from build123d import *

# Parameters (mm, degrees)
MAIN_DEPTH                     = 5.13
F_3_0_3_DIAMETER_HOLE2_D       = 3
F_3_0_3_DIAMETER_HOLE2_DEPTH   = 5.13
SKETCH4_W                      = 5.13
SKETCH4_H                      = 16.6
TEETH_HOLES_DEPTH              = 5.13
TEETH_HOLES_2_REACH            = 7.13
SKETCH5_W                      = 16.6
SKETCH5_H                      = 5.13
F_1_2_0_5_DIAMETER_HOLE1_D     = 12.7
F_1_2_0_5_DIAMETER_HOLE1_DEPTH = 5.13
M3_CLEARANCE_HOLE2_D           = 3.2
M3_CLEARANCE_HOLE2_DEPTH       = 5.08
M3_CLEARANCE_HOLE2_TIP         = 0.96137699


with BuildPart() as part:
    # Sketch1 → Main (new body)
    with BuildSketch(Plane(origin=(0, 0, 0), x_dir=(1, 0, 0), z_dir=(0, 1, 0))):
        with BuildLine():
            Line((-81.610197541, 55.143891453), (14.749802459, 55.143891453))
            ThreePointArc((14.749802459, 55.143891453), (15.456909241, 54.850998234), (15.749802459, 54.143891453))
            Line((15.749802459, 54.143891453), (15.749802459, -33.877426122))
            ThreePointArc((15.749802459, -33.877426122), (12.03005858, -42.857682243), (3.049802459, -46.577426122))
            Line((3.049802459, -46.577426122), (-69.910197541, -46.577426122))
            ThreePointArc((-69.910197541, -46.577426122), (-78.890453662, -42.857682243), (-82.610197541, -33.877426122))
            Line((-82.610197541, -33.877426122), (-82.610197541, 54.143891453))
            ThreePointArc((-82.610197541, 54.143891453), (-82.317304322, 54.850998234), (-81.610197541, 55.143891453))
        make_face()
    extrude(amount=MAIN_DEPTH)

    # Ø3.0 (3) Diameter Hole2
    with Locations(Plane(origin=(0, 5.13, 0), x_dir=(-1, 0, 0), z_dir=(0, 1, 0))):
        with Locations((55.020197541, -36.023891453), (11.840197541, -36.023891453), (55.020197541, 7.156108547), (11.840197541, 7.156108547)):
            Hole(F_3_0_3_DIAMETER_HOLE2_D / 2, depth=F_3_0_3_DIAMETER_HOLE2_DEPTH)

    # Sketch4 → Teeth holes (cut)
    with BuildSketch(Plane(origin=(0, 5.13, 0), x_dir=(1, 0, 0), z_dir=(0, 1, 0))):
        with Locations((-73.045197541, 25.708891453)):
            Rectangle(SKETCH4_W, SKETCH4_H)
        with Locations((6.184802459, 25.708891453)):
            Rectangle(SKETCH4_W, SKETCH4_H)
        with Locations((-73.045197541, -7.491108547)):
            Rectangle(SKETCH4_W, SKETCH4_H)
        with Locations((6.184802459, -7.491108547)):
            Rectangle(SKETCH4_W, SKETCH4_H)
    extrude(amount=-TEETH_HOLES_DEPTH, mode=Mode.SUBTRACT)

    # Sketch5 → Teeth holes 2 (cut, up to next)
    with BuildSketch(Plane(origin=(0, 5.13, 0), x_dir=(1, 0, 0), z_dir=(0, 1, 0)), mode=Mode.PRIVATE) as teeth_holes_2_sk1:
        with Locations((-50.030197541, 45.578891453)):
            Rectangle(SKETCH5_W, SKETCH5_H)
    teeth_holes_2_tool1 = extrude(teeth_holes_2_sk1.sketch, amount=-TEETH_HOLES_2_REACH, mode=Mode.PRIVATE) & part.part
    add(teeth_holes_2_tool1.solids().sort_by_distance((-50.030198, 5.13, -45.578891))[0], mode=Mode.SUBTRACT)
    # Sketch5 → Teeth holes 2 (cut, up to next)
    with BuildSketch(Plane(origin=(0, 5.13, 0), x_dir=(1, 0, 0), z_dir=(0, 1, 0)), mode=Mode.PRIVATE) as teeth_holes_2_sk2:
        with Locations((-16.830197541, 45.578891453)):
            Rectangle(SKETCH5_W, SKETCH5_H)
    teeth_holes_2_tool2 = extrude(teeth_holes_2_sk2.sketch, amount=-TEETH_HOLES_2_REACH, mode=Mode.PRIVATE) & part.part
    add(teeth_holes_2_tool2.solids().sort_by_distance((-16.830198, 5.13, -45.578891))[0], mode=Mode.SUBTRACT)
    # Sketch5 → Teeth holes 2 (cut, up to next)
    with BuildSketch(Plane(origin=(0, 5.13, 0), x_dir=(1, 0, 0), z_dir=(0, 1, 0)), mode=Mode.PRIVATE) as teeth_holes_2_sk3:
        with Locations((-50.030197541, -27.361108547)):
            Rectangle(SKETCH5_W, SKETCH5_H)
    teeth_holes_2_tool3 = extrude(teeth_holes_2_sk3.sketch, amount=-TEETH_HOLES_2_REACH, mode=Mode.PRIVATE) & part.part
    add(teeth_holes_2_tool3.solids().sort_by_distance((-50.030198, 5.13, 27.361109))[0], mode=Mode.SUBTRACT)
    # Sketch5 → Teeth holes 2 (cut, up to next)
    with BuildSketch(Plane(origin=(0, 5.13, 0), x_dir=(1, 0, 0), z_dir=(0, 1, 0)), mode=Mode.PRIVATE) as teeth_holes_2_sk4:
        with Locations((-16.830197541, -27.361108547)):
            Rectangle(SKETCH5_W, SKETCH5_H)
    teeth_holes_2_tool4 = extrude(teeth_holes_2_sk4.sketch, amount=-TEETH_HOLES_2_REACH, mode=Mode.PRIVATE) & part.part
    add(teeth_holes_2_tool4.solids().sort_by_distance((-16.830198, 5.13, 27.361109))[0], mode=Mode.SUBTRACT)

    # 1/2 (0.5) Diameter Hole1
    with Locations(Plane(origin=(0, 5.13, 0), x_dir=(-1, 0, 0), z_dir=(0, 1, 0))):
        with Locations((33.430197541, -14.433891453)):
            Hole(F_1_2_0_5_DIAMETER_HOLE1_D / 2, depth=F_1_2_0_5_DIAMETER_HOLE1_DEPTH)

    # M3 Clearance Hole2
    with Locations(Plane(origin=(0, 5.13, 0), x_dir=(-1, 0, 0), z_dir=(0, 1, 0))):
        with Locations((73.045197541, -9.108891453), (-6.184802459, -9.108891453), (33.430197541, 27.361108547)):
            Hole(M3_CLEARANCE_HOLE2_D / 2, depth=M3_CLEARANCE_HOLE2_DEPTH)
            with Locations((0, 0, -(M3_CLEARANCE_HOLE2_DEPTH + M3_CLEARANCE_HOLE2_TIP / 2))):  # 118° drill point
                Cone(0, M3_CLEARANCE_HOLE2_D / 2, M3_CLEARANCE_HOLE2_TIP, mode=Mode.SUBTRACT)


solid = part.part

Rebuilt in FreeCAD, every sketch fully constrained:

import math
import FreeCAD as App
import Part
import Sketcher
Q = App.Units.Quantity


def add_polygon(sketch, points):
    """Adds a closed chain of lines whose ends are joined by coincident constraints."""
    first, n = sketch.GeometryCount, len(points)
    for a, b in zip(points, points[1:] + points[:1]):
        sketch.addGeometry(Part.LineSegment(App.Vector(*a, 0), App.Vector(*b, 0)), False)
    for i in range(n):
        sketch.addConstraint(Sketcher.Constraint("Coincident", first + i, 2, first + (i + 1) % n, 1))

doc = App.newDocument("Part")
body = doc.addObject("PartDesign::Body", "Body")

# Sketch on XZ plane
sketch1 = body.newObject("Sketcher::SketchObject", "Sketch")
sketch1.AttachmentSupport = (doc.getObject("XZ_Plane"), [""])
sketch1.MapMode = "FlatFace"
sketch1.addGeometry([
    Part.LineSegment(App.Vector(14.7, -55.1, 0), App.Vector(-81.6, -55.1, 0)),  # 0
    Part.ArcOfCircle(Part.Circle(App.Vector(-81.6, -54.1, 0), App.Vector(0, 0, 1), 1), math.radians(-180), math.radians(-90)),  # 1
    Part.LineSegment(App.Vector(-82.6, -54.1, 0), App.Vector(-82.6, 33.9, 0)),  # 2
    Part.ArcOfCircle(Part.Circle(App.Vector(-69.9, 33.9, 0), App.Vector(0, 0, 1), 12.7), math.radians(90), math.radians(180)),  # 3
    Part.LineSegment(App.Vector(-69.9, 46.6, 0), App.Vector(3, 46.6, 0)),  # 4
    Part.ArcOfCircle(Part.Circle(App.Vector(3, 33.9, 0), App.Vector(0, 0, 1), 12.7), math.radians(0), math.radians(90)),  # 5
    Part.LineSegment(App.Vector(15.7, 33.9, 0), App.Vector(15.7, -54.1, 0)),  # 6
    Part.ArcOfCircle(Part.Circle(App.Vector(14.7, -54.1, 0), App.Vector(0, 0, 1), 1), math.radians(-90), math.radians(0)),  # 7
], False)
sketch1.addConstraint([
    Sketcher.Constraint("Tangent", 0, 2, 1, 2),
    Sketcher.Constraint("Tangent", 1, 1, 2, 1),
    Sketcher.Constraint("Tangent", 2, 2, 3, 2),
    Sketcher.Constraint("Tangent", 3, 1, 4, 1),
    Sketcher.Constraint("Tangent", 4, 2, 5, 2),
    Sketcher.Constraint("Tangent", 5, 1, 6, 1),
    Sketcher.Constraint("Tangent", 6, 2, 7, 2),
    Sketcher.Constraint("Tangent", 7, 1, 0, 1),
    Sketcher.Constraint("Horizontal", 0),
    Sketcher.Constraint("Vertical", 2),
    Sketcher.Constraint("Horizontal", 4),
    Sketcher.Constraint("Vertical", 6),
    Sketcher.Constraint("Equal", 3, 5),
    Sketcher.Constraint("Equal", 1, 7),
    Sketcher.Constraint("Radius", 1, Q("1 mm")),
    Sketcher.Constraint("Radius", 3, Q("12.7 mm")),
    Sketcher.Constraint("DistanceX", 0, 2, 0, 1, Q("96.36 mm")),
    Sketcher.Constraint("DistanceY", 2, 1, 2, 2, Q("88.021318 mm")),
    Sketcher.Constraint("DistanceY", 1, 3, -1, 1, Q("54.143891 mm")),
    Sketcher.Constraint("DistanceX", 1, 3, -1, 1, Q("81.610198 mm")),
])
pad1 = body.newObject("PartDesign::Pad", "Pad")
pad1.Profile = sketch1
pad1.Length = 5.13
pad1.Reversed = True

# Sketch on XZ plane
sketch2 = body.newObject("Sketcher::SketchObject", "Sketch001")
sketch2.AttachmentSupport = (doc.getObject("XZ_Plane"), [""])
sketch2.MapMode = "FlatFace"
sketch2.AttachmentOffset = App.Placement(App.Vector(0, 0, -5.13), App.Rotation())
sketch2.addGeometry([
    Part.Circle(App.Vector(-55, -36, 0), App.Vector(0, 0, 1), 1.5),
    Part.Circle(App.Vector(-11.8, -36, 0), App.Vector(0, 0, 1), 1.5),
    Part.Circle(App.Vector(-55, 7.2, 0), App.Vector(0, 0, 1), 1.5),
    Part.Circle(App.Vector(-11.8, 7.2, 0), App.Vector(0, 0, 1), 1.5),
], False)
sketch2.addConstraint([
    Sketcher.Constraint("Equal", 0, 1),
    Sketcher.Constraint("Equal", 1, 2),
    Sketcher.Constraint("Equal", 2, 3),
    Sketcher.Constraint("Horizontal", 0, 3, 1, 3),
    Sketcher.Constraint("Horizontal", 2, 3, 3, 3),
    Sketcher.Constraint("Vertical", 0, 3, 2, 3),
    Sketcher.Constraint("Vertical", 1, 3, 3, 3),
    Sketcher.Constraint("Diameter", 0, Q("3 mm")),
    Sketcher.Constraint("DistanceX", 0, 3, 1, 3, Q("43.18 mm")),
    Sketcher.Constraint("DistanceY", 0, 3, 2, 3, Q("43.18 mm")),
    Sketcher.Constraint("DistanceY", 0, 3, -1, 1, Q("36.023891 mm")),
    Sketcher.Constraint("DistanceX", 0, 3, -1, 1, Q("55.020198 mm")),
])
doc.recompute()
hole = body.newObject("PartDesign::Hole", "Hole")
hole.Profile = sketch2
hole.ThreadType = "None"
hole.Diameter = 3
hole.DepthType = "Dimension"
hole.Depth = 5.13
hole.DrillPoint = "Flat"
hole.Reversed = True

# Sketch on XZ plane
sketch3 = body.newObject("Sketcher::SketchObject", "Sketch002")
sketch3.AttachmentSupport = (doc.getObject("XZ_Plane"), [""])
sketch3.MapMode = "FlatFace"
sketch3.AttachmentOffset = App.Placement(App.Vector(0, 0, -5.13), App.Rotation())
add_polygon(sketch3, [(-76, -34), (-76, -17), (-70, -17), (-70, -34)])  # lines 0-3
add_polygon(sketch3, [(4, -34), (4, -17), (9, -17), (9, -34)])  # lines 4-7
add_polygon(sketch3, [(-76, -1), (-76, 16), (-70, 16), (-70, -1)])  # lines 8-11
add_polygon(sketch3, [(4, -1), (4, 16), (9, 16), (9, -1)])  # lines 12-15
sketch3.addConstraint([
    Sketcher.Constraint("Vertical", 0),
    Sketcher.Constraint("Horizontal", 1),
    Sketcher.Constraint("Vertical", 2),
    Sketcher.Constraint("Horizontal", 3),
    Sketcher.Constraint("Vertical", 4),
    Sketcher.Constraint("Horizontal", 5),
    Sketcher.Constraint("Vertical", 6),
    Sketcher.Constraint("Horizontal", 7),
    Sketcher.Constraint("Vertical", 8),
    Sketcher.Constraint("Horizontal", 9),
    Sketcher.Constraint("Vertical", 10),
    Sketcher.Constraint("Horizontal", 11),
    Sketcher.Constraint("Vertical", 12),
    Sketcher.Constraint("Horizontal", 13),
    Sketcher.Constraint("Vertical", 14),
    Sketcher.Constraint("Horizontal", 15),
    Sketcher.Constraint("Horizontal", 1, 2, 4, 2),
    Sketcher.Constraint("Horizontal", 3, 2, 6, 2),
    Sketcher.Constraint("Horizontal", 9, 2, 12, 2),
    Sketcher.Constraint("Horizontal", 11, 2, 14, 2),
    Sketcher.Constraint("Vertical", 3, 2, 8, 2),
    Sketcher.Constraint("Vertical", 2, 2, 9, 2),
    Sketcher.Constraint("Vertical", 7, 2, 12, 2),
    Sketcher.Constraint("Vertical", 6, 2, 13, 2),
    Sketcher.Constraint("Equal", 3, 5),
    Sketcher.Constraint("Equal", 6, 8),
    Sketcher.Constraint("DistanceY", 0, 1, 0, 2, Q("16.6 mm")),
    Sketcher.Constraint("DistanceX", 1, 1, 1, 2, Q("5.13 mm")),
    Sketcher.Constraint("DistanceX", 1, 2, 4, 2, Q("74.1 mm")),
    Sketcher.Constraint("DistanceY", 0, 2, 8, 2, Q("33.2 mm")),
    Sketcher.Constraint("DistanceY", 0, 2, -1, 1, Q("17.408891 mm")),
    Sketcher.Constraint("DistanceX", 0, 2, -1, 1, Q("75.610198 mm")),
])
pocket1 = body.newObject("PartDesign::Pocket", "Pocket")
pocket1.Profile = sketch3
pocket1.Length = 5.13
pocket1.Reversed = True

# Sketch on XZ plane
sketch4 = body.newObject("Sketcher::SketchObject", "Sketch003")
sketch4.AttachmentSupport = (doc.getObject("XZ_Plane"), [""])
sketch4.MapMode = "FlatFace"
sketch4.AttachmentOffset = App.Placement(App.Vector(0, 0, -5.13), App.Rotation())
add_polygon(sketch4, [(-58, -48), (-58, -43), (-42, -43), (-42, -48)])  # lines 0-3
sketch4.addConstraint([
    Sketcher.Constraint("Vertical", 0),
    Sketcher.Constraint("Horizontal", 1),
    Sketcher.Constraint("Vertical", 2),
    Sketcher.Constraint("Horizontal", 3),
    Sketcher.Constraint("DistanceX", 1, 1, 1, 2, Q("16.6 mm")),
    Sketcher.Constraint("DistanceY", 0, 1, 0, 2, Q("5.13 mm")),
    Sketcher.Constraint("DistanceY", 0, 2, -1, 1, Q("43.013891 mm")),
    Sketcher.Constraint("DistanceX", 0, 2, -1, 1, Q("58.330198 mm")),
])
pocket2 = body.newObject("PartDesign::Pocket", "Pocket001")
pocket2.Profile = sketch4
pocket2.Type = "UpToFirst"
pocket2.Reversed = True

# Sketch on XZ plane
sketch5 = body.newObject("Sketcher::SketchObject", "Sketch004")
sketch5.AttachmentSupport = (doc.getObject("XZ_Plane"), [""])
sketch5.MapMode = "FlatFace"
sketch5.AttachmentOffset = App.Placement(App.Vector(0, 0, -5.13), App.Rotation())
add_polygon(sketch5, [(-25, -48), (-25, -43), (-9, -43), (-9, -48)])  # lines 0-3
sketch5.addConstraint([
    Sketcher.Constraint("Vertical", 0),
    Sketcher.Constraint("Horizontal", 1),
    Sketcher.Constraint("Vertical", 2),
    Sketcher.Constraint("Horizontal", 3),
    Sketcher.Constraint("DistanceX", 1, 1, 1, 2, Q("16.6 mm")),
    Sketcher.Constraint("DistanceY", 0, 1, 0, 2, Q("5.13 mm")),
    Sketcher.Constraint("DistanceY", 0, 2, -1, 1, Q("43.013891 mm")),
    Sketcher.Constraint("DistanceX", 0, 2, -1, 1, Q("25.130198 mm")),
])
pocket3 = body.newObject("PartDesign::Pocket", "Pocket002")
pocket3.Profile = sketch5
pocket3.Type = "UpToFirst"
pocket3.Reversed = True

# Sketch on XZ plane
sketch6 = body.newObject("Sketcher::SketchObject", "Sketch005")
sketch6.AttachmentSupport = (doc.getObject("XZ_Plane"), [""])
sketch6.MapMode = "FlatFace"
sketch6.AttachmentOffset = App.Placement(App.Vector(0, 0, -5.13), App.Rotation())
add_polygon(sketch6, [(-58, 25), (-58, 30), (-42, 30), (-42, 25)])  # lines 0-3
sketch6.addConstraint([
    Sketcher.Constraint("Vertical", 0),
    Sketcher.Constraint("Horizontal", 1),
    Sketcher.Constraint("Vertical", 2),
    Sketcher.Constraint("Horizontal", 3),
    Sketcher.Constraint("DistanceX", 1, 1, 1, 2, Q("16.6 mm")),
    Sketcher.Constraint("DistanceY", 0, 1, 0, 2, Q("5.13 mm")),
    Sketcher.Constraint("DistanceY", -1, 1, 0, 2, Q("29.926109 mm")),
    Sketcher.Constraint("DistanceX", 0, 2, -1, 1, Q("58.330198 mm")),
])
pocket4 = body.newObject("PartDesign::Pocket", "Pocket003")
pocket4.Profile = sketch6
pocket4.Type = "UpToFirst"
pocket4.Reversed = True

# Sketch on XZ plane
sketch7 = body.newObject("Sketcher::SketchObject", "Sketch006")
sketch7.AttachmentSupport = (doc.getObject("XZ_Plane"), [""])
sketch7.MapMode = "FlatFace"
sketch7.AttachmentOffset = App.Placement(App.Vector(0, 0, -5.13), App.Rotation())
add_polygon(sketch7, [(-25, 25), (-25, 30), (-9, 30), (-9, 25)])  # lines 0-3
sketch7.addConstraint([
    Sketcher.Constraint("Vertical", 0),
    Sketcher.Constraint("Horizontal", 1),
    Sketcher.Constraint("Vertical", 2),
    Sketcher.Constraint("Horizontal", 3),
    Sketcher.Constraint("DistanceX", 1, 1, 1, 2, Q("16.6 mm")),
    Sketcher.Constraint("DistanceY", 0, 1, 0, 2, Q("5.13 mm")),
    Sketcher.Constraint("DistanceY", -1, 1, 0, 2, Q("29.926109 mm")),
    Sketcher.Constraint("DistanceX", 0, 2, -1, 1, Q("25.130198 mm")),
])
pocket5 = body.newObject("PartDesign::Pocket", "Pocket004")
pocket5.Profile = sketch7
pocket5.Type = "UpToFirst"
pocket5.Reversed = True

# Sketch on XZ plane
sketch8 = body.newObject("Sketcher::SketchObject", "Sketch007")
sketch8.AttachmentSupport = (doc.getObject("XZ_Plane"), [""])
sketch8.MapMode = "FlatFace"
sketch8.AttachmentOffset = App.Placement(App.Vector(0, 0, -5.13), App.Rotation())
sketch8.addGeometry(Part.Circle(App.Vector(-33, -14, 0), App.Vector(0, 0, 1), 6), False)
sketch8.addConstraint([
    Sketcher.Constraint("Diameter", 0, Q("12.7 mm")),
    Sketcher.Constraint("DistanceY", 0, 3, -1, 1, Q("14.433891 mm")),
    Sketcher.Constraint("DistanceX", 0, 3, -1, 1, Q("33.430198 mm")),
])
doc.recompute()
hole2 = body.newObject("PartDesign::Hole", "Hole001")
hole2.Profile = sketch8
hole2.ThreadType = "None"
hole2.Diameter = 12.7
hole2.DepthType = "Dimension"
hole2.Depth = 5.13
hole2.DrillPoint = "Flat"
hole2.Reversed = True

# Sketch on XZ plane
sketch9 = body.newObject("Sketcher::SketchObject", "Sketch008")
sketch9.AttachmentSupport = (doc.getObject("XZ_Plane"), [""])
sketch9.MapMode = "FlatFace"
sketch9.AttachmentOffset = App.Placement(App.Vector(0, 0, -5.13), App.Rotation())
sketch9.addGeometry([
    Part.Circle(App.Vector(-73, -9.1, 0), App.Vector(0, 0, 1), 1.6),
    Part.Circle(App.Vector(6.2, -9.1, 0), App.Vector(0, 0, 1), 1.6),
    Part.Circle(App.Vector(-33.4, 27.4, 0), App.Vector(0, 0, 1), 1.6),
], False)
sketch9.addConstraint([
    Sketcher.Constraint("Equal", 0, 1),
    Sketcher.Constraint("Equal", 1, 2),
    Sketcher.Constraint("Horizontal", 0, 3, 1, 3),
    Sketcher.Constraint("Diameter", 0, Q("3.2 mm")),
    Sketcher.Constraint("DistanceX", 0, 3, 1, 3, Q("79.23 mm")),
    Sketcher.Constraint("DistanceY", 0, 3, 2, 3, Q("36.47 mm")),
    Sketcher.Constraint("DistanceX", 0, 3, 2, 3, Q("39.615 mm")),
    Sketcher.Constraint("DistanceY", 0, 3, -1, 1, Q("9.108891 mm")),
    Sketcher.Constraint("DistanceX", 0, 3, -1, 1, Q("73.045198 mm")),
])
doc.recompute()
hole3 = body.newObject("PartDesign::Hole", "Hole002")
hole3.Profile = sketch9
hole3.ThreadType = "None"
hole3.Diameter = 3.2
hole3.DepthType = "Dimension"
hole3.Depth = 5.08
hole3.DrillPoint = "Angled"
hole3.DrillPointAngle = 118
hole3.Reversed = True

doc.recompute()
